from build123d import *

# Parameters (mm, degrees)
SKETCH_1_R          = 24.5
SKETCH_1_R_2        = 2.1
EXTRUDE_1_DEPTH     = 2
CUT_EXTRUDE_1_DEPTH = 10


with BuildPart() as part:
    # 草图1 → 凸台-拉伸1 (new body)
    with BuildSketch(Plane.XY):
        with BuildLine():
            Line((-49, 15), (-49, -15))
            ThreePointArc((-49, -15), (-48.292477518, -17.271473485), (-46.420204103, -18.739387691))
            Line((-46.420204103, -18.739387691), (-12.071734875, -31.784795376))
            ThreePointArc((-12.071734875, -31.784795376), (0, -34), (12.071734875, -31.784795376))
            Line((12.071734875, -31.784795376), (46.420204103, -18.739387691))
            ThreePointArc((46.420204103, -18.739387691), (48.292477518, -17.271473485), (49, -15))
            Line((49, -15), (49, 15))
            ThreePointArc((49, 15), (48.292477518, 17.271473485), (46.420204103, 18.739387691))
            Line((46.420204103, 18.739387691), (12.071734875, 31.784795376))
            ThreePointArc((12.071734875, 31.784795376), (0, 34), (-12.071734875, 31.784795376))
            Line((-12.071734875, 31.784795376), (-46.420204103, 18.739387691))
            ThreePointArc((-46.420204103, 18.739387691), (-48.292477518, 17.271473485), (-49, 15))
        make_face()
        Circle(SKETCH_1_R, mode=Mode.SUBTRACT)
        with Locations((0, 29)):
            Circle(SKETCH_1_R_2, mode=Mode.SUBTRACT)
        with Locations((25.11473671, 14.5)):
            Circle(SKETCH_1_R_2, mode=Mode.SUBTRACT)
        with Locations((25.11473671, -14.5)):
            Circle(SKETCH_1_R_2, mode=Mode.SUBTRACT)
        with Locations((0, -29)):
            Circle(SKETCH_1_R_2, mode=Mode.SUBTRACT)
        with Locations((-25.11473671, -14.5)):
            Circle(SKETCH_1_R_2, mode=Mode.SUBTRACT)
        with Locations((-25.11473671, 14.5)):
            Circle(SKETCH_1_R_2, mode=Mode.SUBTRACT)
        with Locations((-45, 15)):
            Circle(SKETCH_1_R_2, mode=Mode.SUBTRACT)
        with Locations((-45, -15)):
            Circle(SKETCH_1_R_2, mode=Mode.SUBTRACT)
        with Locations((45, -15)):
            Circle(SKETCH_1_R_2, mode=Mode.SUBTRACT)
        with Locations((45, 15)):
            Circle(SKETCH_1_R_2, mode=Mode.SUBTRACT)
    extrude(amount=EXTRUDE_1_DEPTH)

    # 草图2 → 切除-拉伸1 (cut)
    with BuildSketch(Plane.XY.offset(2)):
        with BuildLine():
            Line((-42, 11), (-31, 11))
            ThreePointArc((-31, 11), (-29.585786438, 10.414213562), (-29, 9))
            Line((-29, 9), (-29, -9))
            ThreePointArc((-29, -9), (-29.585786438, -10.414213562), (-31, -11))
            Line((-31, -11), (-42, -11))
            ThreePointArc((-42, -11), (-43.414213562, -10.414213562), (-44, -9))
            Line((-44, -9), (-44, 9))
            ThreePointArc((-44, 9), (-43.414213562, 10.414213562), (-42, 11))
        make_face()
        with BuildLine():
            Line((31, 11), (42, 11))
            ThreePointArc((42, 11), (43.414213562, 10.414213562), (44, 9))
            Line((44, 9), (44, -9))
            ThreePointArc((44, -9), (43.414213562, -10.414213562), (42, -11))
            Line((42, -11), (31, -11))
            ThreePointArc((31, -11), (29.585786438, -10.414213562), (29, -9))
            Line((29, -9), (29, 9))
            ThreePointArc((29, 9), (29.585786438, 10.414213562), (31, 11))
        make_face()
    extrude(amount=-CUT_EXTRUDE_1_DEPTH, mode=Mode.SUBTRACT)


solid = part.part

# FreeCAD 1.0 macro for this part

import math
import FreeCAD as App
import Part
import Sketcher

doc = App.newDocument("Part")
params = doc.addObject("Spreadsheet::Sheet", "Params")
for row, (alias, value) in enumerate([
    ("sketch1_diameter", "49 mm"),
    ("sketch1_radius", "4 mm"),
    ("sketch1_radius2", "34 mm"),
    ("sketch1_diameter2", "4.2 mm"),
    ("sketch1_height", "30 mm"),
    ("pad1_length", "2 mm"),
    ("sketch2_radius", "2 mm"),
    ("sketch2_width", "11 mm"),
    ("sketch2_height", "18 mm"),
    ("pocket1_length", "10 mm"),
], start=1):
    params.set(f"A{row}", alias)
    params.set(f"B{row}", "=" + value)
    params.setAlias(f"B{row}", alias)

body = doc.addObject("PartDesign::Body", "Body")

# Sketch on XY plane
sketch1 = body.newObject("Sketcher::SketchObject", "Sketch")
sketch1.AttachmentSupport = (doc.getObject("XY_Plane"), [""])
sketch1.MapMode = "FlatFace"
sketch1.addGeometry(Part.LineSegment(App.Vector(-49, 15, 0), App.Vector(-49, -15, 0)), False)
sketch1.addGeometry(Part.ArcOfCircle(Part.Circle(App.Vector(-45, -15, 0), App.Vector(0, 0, 1), 4), math.radians(180), math.radians(249)), False)
sketch1.addGeometry(Part.LineSegment(App.Vector(-46.4, -18.7, 0), App.Vector(-12.1, -31.8, 0)), False)
sketch1.addGeometry(Part.ArcOfCircle(Part.Circle(App.Vector(0, 0, 0), App.Vector(0, 0, 1), 34), math.radians(-111), math.radians(-69)), False)
sketch1.addGeometry(Part.LineSegment(App.Vector(12.1, -31.8, 0), App.Vector(46.4, -18.7, 0)), False)
sketch1.addGeometry(Part.ArcOfCircle(Part.Circle(App.Vector(45, -15, 0), App.Vector(0, 0, 1), 4), math.radians(-69), math.radians(0)), False)
sketch1.addGeometry(Part.LineSegment(App.Vector(49, -15, 0), App.Vector(49, 15, 0)), False)
sketch1.addGeometry(Part.ArcOfCircle(Part.Circle(App.Vector(45, 15, 0), App.Vector(0, 0, 1), 4), math.radians(0), math.radians(69)), False)
sketch1.addGeometry(Part.LineSegment(App.Vector(46.4, 18.7, 0), App.Vector(12.1, 31.8, 0)), False)
sketch1.addGeometry(Part.ArcOfCircle(Part.Circle(App.Vector(0, 0, 0), App.Vector(0, 0, 1), 34), math.radians(69), math.radians(111)), False)
sketch1.addGeometry(Part.LineSegment(App.Vector(-12.1, 31.8, 0), App.Vector(-46.4, 18.7, 0)), False)
sketch1.addGeometry(Part.ArcOfCircle(Part.Circle(App.Vector(-45, 15, 0), App.Vector(0, 0, 1), 4), math.radians(111), math.radians(180)), False)
sketch1.addGeometry(Part.Circle(App.Vector(-45, -15, 0), App.Vector(0, 0, 1), 2.1), False)
sketch1.addGeometry(Part.Circle(App.Vector(-25.1, -14.5, 0), App.Vector(0, 0, 1), 2.1), False)
sketch1.addGeometry(Part.Circle(App.Vector(0, -29, 0), App.Vector(0, 0, 1), 2.1), False)
sketch1.addGeometry(Part.Circle(App.Vector(25.1, -14.5, 0), App.Vector(0, 0, 1), 2.1), False)
sketch1.addGeometry(Part.Circle(App.Vector(45, -15, 0), App.Vector(0, 0, 1), 2.1), False)
sketch1.addGeometry(Part.Circle(App.Vector(-45, 15, 0), App.Vector(0, 0, 1), 2.1), False)
sketch1.addGeometry(Part.Circle(App.Vector(-25.1, 14.5, 0), App.Vector(0, 0, 1), 2.1), False)
sketch1.addGeometry(Part.Circle(App.Vector(0, 0, 0), App.Vector(0, 0, 1), 24.5), False)
sketch1.addGeometry(Part.Circle(App.Vector(25.1, 14.5, 0), App.Vector(0, 0, 1), 2.1), False)
sketch1.addGeometry(Part.Circle(App.Vector(45, 15, 0), App.Vector(0, 0, 1), 2.1), False)
sketch1.addGeometry(Part.Circle(App.Vector(0, 29, 0), App.Vector(0, 0, 1), 2.1), False)
sketch1.addConstraint(Sketcher.Constraint("Tangent", 0, 2, 1, 1))
sketch1.addConstraint(Sketcher.Constraint("Tangent", 1, 2, 2, 1))
sketch1.addConstraint(Sketcher.Constraint("Tangent", 2, 2, 3, 1))
sketch1.addConstraint(Sketcher.Constraint("Tangent", 3, 2, 4, 1))
sketch1.addConstraint(Sketcher.Constraint("Tangent", 4, 2, 5, 1))
sketch1.addConstraint(Sketcher.Constraint("Tangent", 5, 2, 6, 1))
sketch1.addConstraint(Sketcher.Constraint("Tangent", 6, 2, 7, 1))
sketch1.addConstraint(Sketcher.Constraint("Tangent", 7, 2, 8, 1))
sketch1.addConstraint(Sketcher.Constraint("Tangent", 8, 2, 9, 1))
sketch1.addConstraint(Sketcher.Constraint("Tangent", 9, 2, 10, 1))
sketch1.addConstraint(Sketcher.Constraint("Tangent", 10, 2, 11, 1))
sketch1.addConstraint(Sketcher.Constraint("Tangent", 11, 2, 0, 1))
sketch1.addConstraint(Sketcher.Constraint("Vertical", 0))
sketch1.addConstraint(Sketcher.Constraint("Vertical", 6))
sketch1.addConstraint(Sketcher.Constraint("Coincident", 3, 3, -1, 1))
sketch1.addConstraint(Sketcher.Constraint("Coincident", 9, 3, -1, 1))
sketch1.addConstraint(Sketcher.Constraint("Coincident", 19, 3, -1, 1))
sketch1.addConstraint(Sketcher.Constraint("Coincident", 12, 3, 1, 3))
sketch1.addConstraint(Sketcher.Constraint("Coincident", 16, 3, 5, 3))
sketch1.addConstraint(Sketcher.Constraint("Coincident", 17, 3, 11, 3))
sketch1.addConstraint(Sketcher.Constraint("Coincident", 21, 3, 7, 3))
sketch1.addConstraint(Sketcher.Constraint("Equal", 1, 5))
sketch1.addConstraint(Sketcher.Constraint("Equal", 5, 7))
sketch1.addConstraint(Sketcher.Constraint("Equal", 3, 9))
sketch1.addConstraint(Sketcher.Constraint("Equal", 7, 11))
sketch1.addConstraint(Sketcher.Constraint("Equal", 12, 13))
sketch1.addConstraint(Sketcher.Constraint("Equal", 13, 14))
sketch1.addConstraint(Sketcher.Constraint("Equal", 14, 15))
sketch1.addConstraint(Sketcher.Constraint("Equal", 15, 16))
sketch1.addConstraint(Sketcher.Constraint("Equal", 16, 17))
sketch1.addConstraint(Sketcher.Constraint("Equal", 17, 18))
sketch1.addConstraint(Sketcher.Constraint("Equal", 18, 20))
sketch1.addConstraint(Sketcher.Constraint("Equal", 20, 21))
sketch1.addConstraint(Sketcher.Constraint("Equal", 21, 22))
sketch1.addConstraint(Sketcher.Constraint("Symmetric", 1, 3, 7, 3, -1, 1))
sketch1.addConstraint(Sketcher.Constraint("Symmetric", 15, 3, 18, 3, -1, 1))
sketch1.addConstraint(Sketcher.Constraint("Symmetric", 13, 3, 20, 3, -1, 1))
sketch1.addConstraint(Sketcher.Constraint("Symmetric", 14, 3, 22, 3, -1, 1))
sketch1.addConstraint(Sketcher.Constraint("Symmetric", 13, 3, 15, 3, -2))
sketch1.addConstraint(Sketcher.Constraint("PointOnObject", 14, 3, -2))
sketch1.addConstraint(Sketcher.Constraint("Parallel", 4, 10))
sketch1.addConstraint(Sketcher.Constraint("Horizontal", 1, 3, 5, 3))
sketch1.addConstraint(Sketcher.Constraint("Diameter", 19, 49.0))
sketch1.addConstraint(Sketcher.Constraint("Radius", 1, 4.0))
sketch1.addConstraint(Sketcher.Constraint("Radius", 3, 34.0))
sketch1.addConstraint(Sketcher.Constraint("Diameter", 12, 4.2))
sketch1.addConstraint(Sketcher.Constraint("DistanceY", 0, 2, 0, 1, 30.0))
sketch1.addConstraint(Sketcher.Constraint("DistanceX", 1, 3, -1, 1, 45.0))
sketch1.addConstraint(Sketcher.Constraint("DistanceY", 14, 3, -1, 1, 29.0))
sketch1.addConstraint(Sketcher.Constraint("DistanceY", 13, 3, 18, 3, 29.0))
sketch1.addConstraint(Sketcher.Constraint("DistanceX", 13, 3, 2, 2, 13.043002))
sketch1.setExpression("Constraints[42]", "Params.sketch1_diameter")
sketch1.setExpression("Constraints[43]", "Params.sketch1_radius")
sketch1.setExpression("Constraints[44]", "Params.sketch1_radius2")
sketch1.setExpression("Constraints[45]", "Params.sketch1_diameter2")
sketch1.setExpression("Constraints[46]", "Params.sketch1_height")
pad1 = body.newObject("PartDesign::Pad", "Pad")
pad1.Profile = sketch1
pad1.setExpression("Length", "Params.pad1_length")

# Sketch on XY plane
sketch2 = body.newObject("Sketcher::SketchObject", "Sketch001")
sketch2.AttachmentSupport = (doc.getObject("XY_Plane"), [""])
sketch2.MapMode = "FlatFace"
sketch2.AttachmentOffset = App.Placement(App.Vector(0, 0, 2), App.Rotation())
sketch2.addGeometry(Part.LineSegment(App.Vector(-31, 11, 0), App.Vector(-42, 11, 0)), False)
sketch2.addGeometry(Part.ArcOfCircle(Part.Circle(App.Vector(-42, 9, 0), App.Vector(0, 0, 1), 2), math.radians(90), math.radians(180)), False)
sketch2.addGeometry(Part.LineSegment(App.Vector(-44, 9, 0), App.Vector(-44, -9, 0)), False)
sketch2.addGeometry(Part.ArcOfCircle(Part.Circle(App.Vector(-42, -9, 0), App.Vector(0, 0, 1), 2), math.radians(-180), math.radians(-90)), False)
sketch2.addGeometry(Part.LineSegment(App.Vector(-42, -11, 0), App.Vector(-31, -11, 0)), False)
sketch2.addGeometry(Part.ArcOfCircle(Part.Circle(App.Vector(-31, -9, 0), App.Vector(0, 0, 1), 2), math.radians(-90), math.radians(0)), False)
sketch2.addGeometry(Part.LineSegment(App.Vector(-29, -9, 0), App.Vector(-29, 9, 0)), False)
sketch2.addGeometry(Part.ArcOfCircle(Part.Circle(App.Vector(-31, 9, 0), App.Vector(0, 0, 1), 2), math.radians(0), math.radians(90)), False)
sketch2.addGeometry(Part.LineSegment(App.Vector(42, 11, 0), App.Vector(31, 11, 0)), False)
sketch2.addGeometry(Part.ArcOfCircle(Part.Circle(App.Vector(31, 9, 0), App.Vector(0, 0, 1), 2), math.radians(90), math.radians(180)), False)
sketch2.addGeometry(Part.LineSegment(App.Vector(29, 9, 0), App.Vector(29, -9, 0)), False)
sketch2.addGeometry(Part.ArcOfCircle(Part.Circle(App.Vector(31, -9, 0), App.Vector(0, 0, 1), 2), math.radians(-180), math.radians(-90)), False)
sketch2.addGeometry(Part.LineSegment(App.Vector(31, -11, 0), App.Vector(42, -11, 0)), False)
sketch2.addGeometry(Part.ArcOfCircle(Part.Circle(App.Vector(42, -9, 0), App.Vector(0, 0, 1), 2), math.radians(-90), math.radians(0)), False)
sketch2.addGeometry(Part.LineSegment(App.Vector(44, -9, 0), App.Vector(44, 9, 0)), False)
sketch2.addGeometry(Part.ArcOfCircle(Part.Circle(App.Vector(42, 9, 0), App.Vector(0, 0, 1), 2), math.radians(0), math.radians(90)), False)
sketch2.addConstraint(Sketcher.Constraint("Tangent", 0, 2, 1, 1))
sketch2.addConstraint(Sketcher.Constraint("Tangent", 1, 2, 2, 1))
sketch2.addConstraint(Sketcher.Constraint("Tangent", 2, 2, 3, 1))
sketch2.addConstraint(Sketcher.Constraint("Tangent", 3, 2, 4, 1))
sketch2.addConstraint(Sketcher.Constraint("Tangent", 4, 2, 5, 1))
sketch2.addConstraint(Sketcher.Constraint("Tangent", 5, 2, 6, 1))
sketch2.addConstraint(Sketcher.Constraint("Tangent", 6, 2, 7, 1))
sketch2.addConstraint(Sketcher.Constraint("Tangent", 7, 2, 0, 1))
sketch2.addConstraint(Sketcher.Constraint("Tangent", 8, 2, 9, 1))
sketch2.addConstraint(Sketcher.Constraint("Tangent", 9, 2, 10, 1))
sketch2.addConstraint(Sketcher.Constraint("Tangent", 10, 2, 11, 1))
sketch2.addConstraint(Sketcher.Constraint("Tangent", 11, 2, 12, 1))
sketch2.addConstraint(Sketcher.Constraint("Tangent", 12, 2, 13, 1))
sketch2.addConstraint(Sketcher.Constraint("Tangent", 13, 2, 14, 1))
sketch2.addConstraint(Sketcher.Constraint("Tangent", 14, 2, 15, 1))
sketch2.addConstraint(Sketcher.Constraint("Tangent", 15, 2, 8, 1))
sketch2.addConstraint(Sketcher.Constraint("Horizontal", 0))
sketch2.addConstraint(Sketcher.Constraint("Vertical", 2))
sketch2.addConstraint(Sketcher.Constraint("Horizontal", 4))
sketch2.addConstraint(Sketcher.Constraint("Vertical", 6))
sketch2.addConstraint(Sketcher.Constraint("Horizontal", 8))
sketch2.addConstraint(Sketcher.Constraint("Vertical", 10))
sketch2.addConstraint(Sketcher.Constraint("Horizontal", 12))
sketch2.addConstraint(Sketcher.Constraint("Vertical", 14))
sketch2.addConstraint(Sketcher.Constraint("Equal", 1, 3))
sketch2.addConstraint(Sketcher.Constraint("Equal", 3, 5))
sketch2.addConstraint(Sketcher.Constraint("Equal", 5, 7))
sketch2.addConstraint(Sketcher.Constraint("Equal", 7, 9))
sketch2.addConstraint(Sketcher.Constraint("Equal", 9, 11))
sketch2.addConstraint(Sketcher.Constraint("Equal", 11, 13))
sketch2.addConstraint(Sketcher.Constraint("Equal", 13, 15))
sketch2.addConstraint(Sketcher.Constraint("Symmetric", 5, 3, 9, 3, -1, 1))
sketch2.addConstraint(Sketcher.Constraint("Symmetric", 1, 3, 13, 3, -1, 1))
sketch2.addConstraint(Sketcher.Constraint("Horizontal", 7, 3, 9, 3))
sketch2.addConstraint(Sketcher.Constraint("Radius", 1, 2.0))
sketch2.addConstraint(Sketcher.Constraint("DistanceX", 0, 2, 0, 1, 11.0))
sketch2.addConstraint(Sketcher.Constraint("DistanceY", 2, 2, 2, 1, 18.0))
sketch2.addConstraint(Sketcher.Constraint("DistanceX", 1, 3, -1, 1, 42.0))
sketch2.setExpression("Constraints[34]", "Params.sketch2_radius")
sketch2.setExpression("Constraints[35]", "Params.sketch2_width")
sketch2.setExpression("Constraints[36]", "Params.sketch2_height")
pocket1 = body.newObject("PartDesign::Pocket", "Pocket")
pocket1.Profile = sketch2
pocket1.setExpression("Length", "Params.pocket1_length")

doc.recompute()
